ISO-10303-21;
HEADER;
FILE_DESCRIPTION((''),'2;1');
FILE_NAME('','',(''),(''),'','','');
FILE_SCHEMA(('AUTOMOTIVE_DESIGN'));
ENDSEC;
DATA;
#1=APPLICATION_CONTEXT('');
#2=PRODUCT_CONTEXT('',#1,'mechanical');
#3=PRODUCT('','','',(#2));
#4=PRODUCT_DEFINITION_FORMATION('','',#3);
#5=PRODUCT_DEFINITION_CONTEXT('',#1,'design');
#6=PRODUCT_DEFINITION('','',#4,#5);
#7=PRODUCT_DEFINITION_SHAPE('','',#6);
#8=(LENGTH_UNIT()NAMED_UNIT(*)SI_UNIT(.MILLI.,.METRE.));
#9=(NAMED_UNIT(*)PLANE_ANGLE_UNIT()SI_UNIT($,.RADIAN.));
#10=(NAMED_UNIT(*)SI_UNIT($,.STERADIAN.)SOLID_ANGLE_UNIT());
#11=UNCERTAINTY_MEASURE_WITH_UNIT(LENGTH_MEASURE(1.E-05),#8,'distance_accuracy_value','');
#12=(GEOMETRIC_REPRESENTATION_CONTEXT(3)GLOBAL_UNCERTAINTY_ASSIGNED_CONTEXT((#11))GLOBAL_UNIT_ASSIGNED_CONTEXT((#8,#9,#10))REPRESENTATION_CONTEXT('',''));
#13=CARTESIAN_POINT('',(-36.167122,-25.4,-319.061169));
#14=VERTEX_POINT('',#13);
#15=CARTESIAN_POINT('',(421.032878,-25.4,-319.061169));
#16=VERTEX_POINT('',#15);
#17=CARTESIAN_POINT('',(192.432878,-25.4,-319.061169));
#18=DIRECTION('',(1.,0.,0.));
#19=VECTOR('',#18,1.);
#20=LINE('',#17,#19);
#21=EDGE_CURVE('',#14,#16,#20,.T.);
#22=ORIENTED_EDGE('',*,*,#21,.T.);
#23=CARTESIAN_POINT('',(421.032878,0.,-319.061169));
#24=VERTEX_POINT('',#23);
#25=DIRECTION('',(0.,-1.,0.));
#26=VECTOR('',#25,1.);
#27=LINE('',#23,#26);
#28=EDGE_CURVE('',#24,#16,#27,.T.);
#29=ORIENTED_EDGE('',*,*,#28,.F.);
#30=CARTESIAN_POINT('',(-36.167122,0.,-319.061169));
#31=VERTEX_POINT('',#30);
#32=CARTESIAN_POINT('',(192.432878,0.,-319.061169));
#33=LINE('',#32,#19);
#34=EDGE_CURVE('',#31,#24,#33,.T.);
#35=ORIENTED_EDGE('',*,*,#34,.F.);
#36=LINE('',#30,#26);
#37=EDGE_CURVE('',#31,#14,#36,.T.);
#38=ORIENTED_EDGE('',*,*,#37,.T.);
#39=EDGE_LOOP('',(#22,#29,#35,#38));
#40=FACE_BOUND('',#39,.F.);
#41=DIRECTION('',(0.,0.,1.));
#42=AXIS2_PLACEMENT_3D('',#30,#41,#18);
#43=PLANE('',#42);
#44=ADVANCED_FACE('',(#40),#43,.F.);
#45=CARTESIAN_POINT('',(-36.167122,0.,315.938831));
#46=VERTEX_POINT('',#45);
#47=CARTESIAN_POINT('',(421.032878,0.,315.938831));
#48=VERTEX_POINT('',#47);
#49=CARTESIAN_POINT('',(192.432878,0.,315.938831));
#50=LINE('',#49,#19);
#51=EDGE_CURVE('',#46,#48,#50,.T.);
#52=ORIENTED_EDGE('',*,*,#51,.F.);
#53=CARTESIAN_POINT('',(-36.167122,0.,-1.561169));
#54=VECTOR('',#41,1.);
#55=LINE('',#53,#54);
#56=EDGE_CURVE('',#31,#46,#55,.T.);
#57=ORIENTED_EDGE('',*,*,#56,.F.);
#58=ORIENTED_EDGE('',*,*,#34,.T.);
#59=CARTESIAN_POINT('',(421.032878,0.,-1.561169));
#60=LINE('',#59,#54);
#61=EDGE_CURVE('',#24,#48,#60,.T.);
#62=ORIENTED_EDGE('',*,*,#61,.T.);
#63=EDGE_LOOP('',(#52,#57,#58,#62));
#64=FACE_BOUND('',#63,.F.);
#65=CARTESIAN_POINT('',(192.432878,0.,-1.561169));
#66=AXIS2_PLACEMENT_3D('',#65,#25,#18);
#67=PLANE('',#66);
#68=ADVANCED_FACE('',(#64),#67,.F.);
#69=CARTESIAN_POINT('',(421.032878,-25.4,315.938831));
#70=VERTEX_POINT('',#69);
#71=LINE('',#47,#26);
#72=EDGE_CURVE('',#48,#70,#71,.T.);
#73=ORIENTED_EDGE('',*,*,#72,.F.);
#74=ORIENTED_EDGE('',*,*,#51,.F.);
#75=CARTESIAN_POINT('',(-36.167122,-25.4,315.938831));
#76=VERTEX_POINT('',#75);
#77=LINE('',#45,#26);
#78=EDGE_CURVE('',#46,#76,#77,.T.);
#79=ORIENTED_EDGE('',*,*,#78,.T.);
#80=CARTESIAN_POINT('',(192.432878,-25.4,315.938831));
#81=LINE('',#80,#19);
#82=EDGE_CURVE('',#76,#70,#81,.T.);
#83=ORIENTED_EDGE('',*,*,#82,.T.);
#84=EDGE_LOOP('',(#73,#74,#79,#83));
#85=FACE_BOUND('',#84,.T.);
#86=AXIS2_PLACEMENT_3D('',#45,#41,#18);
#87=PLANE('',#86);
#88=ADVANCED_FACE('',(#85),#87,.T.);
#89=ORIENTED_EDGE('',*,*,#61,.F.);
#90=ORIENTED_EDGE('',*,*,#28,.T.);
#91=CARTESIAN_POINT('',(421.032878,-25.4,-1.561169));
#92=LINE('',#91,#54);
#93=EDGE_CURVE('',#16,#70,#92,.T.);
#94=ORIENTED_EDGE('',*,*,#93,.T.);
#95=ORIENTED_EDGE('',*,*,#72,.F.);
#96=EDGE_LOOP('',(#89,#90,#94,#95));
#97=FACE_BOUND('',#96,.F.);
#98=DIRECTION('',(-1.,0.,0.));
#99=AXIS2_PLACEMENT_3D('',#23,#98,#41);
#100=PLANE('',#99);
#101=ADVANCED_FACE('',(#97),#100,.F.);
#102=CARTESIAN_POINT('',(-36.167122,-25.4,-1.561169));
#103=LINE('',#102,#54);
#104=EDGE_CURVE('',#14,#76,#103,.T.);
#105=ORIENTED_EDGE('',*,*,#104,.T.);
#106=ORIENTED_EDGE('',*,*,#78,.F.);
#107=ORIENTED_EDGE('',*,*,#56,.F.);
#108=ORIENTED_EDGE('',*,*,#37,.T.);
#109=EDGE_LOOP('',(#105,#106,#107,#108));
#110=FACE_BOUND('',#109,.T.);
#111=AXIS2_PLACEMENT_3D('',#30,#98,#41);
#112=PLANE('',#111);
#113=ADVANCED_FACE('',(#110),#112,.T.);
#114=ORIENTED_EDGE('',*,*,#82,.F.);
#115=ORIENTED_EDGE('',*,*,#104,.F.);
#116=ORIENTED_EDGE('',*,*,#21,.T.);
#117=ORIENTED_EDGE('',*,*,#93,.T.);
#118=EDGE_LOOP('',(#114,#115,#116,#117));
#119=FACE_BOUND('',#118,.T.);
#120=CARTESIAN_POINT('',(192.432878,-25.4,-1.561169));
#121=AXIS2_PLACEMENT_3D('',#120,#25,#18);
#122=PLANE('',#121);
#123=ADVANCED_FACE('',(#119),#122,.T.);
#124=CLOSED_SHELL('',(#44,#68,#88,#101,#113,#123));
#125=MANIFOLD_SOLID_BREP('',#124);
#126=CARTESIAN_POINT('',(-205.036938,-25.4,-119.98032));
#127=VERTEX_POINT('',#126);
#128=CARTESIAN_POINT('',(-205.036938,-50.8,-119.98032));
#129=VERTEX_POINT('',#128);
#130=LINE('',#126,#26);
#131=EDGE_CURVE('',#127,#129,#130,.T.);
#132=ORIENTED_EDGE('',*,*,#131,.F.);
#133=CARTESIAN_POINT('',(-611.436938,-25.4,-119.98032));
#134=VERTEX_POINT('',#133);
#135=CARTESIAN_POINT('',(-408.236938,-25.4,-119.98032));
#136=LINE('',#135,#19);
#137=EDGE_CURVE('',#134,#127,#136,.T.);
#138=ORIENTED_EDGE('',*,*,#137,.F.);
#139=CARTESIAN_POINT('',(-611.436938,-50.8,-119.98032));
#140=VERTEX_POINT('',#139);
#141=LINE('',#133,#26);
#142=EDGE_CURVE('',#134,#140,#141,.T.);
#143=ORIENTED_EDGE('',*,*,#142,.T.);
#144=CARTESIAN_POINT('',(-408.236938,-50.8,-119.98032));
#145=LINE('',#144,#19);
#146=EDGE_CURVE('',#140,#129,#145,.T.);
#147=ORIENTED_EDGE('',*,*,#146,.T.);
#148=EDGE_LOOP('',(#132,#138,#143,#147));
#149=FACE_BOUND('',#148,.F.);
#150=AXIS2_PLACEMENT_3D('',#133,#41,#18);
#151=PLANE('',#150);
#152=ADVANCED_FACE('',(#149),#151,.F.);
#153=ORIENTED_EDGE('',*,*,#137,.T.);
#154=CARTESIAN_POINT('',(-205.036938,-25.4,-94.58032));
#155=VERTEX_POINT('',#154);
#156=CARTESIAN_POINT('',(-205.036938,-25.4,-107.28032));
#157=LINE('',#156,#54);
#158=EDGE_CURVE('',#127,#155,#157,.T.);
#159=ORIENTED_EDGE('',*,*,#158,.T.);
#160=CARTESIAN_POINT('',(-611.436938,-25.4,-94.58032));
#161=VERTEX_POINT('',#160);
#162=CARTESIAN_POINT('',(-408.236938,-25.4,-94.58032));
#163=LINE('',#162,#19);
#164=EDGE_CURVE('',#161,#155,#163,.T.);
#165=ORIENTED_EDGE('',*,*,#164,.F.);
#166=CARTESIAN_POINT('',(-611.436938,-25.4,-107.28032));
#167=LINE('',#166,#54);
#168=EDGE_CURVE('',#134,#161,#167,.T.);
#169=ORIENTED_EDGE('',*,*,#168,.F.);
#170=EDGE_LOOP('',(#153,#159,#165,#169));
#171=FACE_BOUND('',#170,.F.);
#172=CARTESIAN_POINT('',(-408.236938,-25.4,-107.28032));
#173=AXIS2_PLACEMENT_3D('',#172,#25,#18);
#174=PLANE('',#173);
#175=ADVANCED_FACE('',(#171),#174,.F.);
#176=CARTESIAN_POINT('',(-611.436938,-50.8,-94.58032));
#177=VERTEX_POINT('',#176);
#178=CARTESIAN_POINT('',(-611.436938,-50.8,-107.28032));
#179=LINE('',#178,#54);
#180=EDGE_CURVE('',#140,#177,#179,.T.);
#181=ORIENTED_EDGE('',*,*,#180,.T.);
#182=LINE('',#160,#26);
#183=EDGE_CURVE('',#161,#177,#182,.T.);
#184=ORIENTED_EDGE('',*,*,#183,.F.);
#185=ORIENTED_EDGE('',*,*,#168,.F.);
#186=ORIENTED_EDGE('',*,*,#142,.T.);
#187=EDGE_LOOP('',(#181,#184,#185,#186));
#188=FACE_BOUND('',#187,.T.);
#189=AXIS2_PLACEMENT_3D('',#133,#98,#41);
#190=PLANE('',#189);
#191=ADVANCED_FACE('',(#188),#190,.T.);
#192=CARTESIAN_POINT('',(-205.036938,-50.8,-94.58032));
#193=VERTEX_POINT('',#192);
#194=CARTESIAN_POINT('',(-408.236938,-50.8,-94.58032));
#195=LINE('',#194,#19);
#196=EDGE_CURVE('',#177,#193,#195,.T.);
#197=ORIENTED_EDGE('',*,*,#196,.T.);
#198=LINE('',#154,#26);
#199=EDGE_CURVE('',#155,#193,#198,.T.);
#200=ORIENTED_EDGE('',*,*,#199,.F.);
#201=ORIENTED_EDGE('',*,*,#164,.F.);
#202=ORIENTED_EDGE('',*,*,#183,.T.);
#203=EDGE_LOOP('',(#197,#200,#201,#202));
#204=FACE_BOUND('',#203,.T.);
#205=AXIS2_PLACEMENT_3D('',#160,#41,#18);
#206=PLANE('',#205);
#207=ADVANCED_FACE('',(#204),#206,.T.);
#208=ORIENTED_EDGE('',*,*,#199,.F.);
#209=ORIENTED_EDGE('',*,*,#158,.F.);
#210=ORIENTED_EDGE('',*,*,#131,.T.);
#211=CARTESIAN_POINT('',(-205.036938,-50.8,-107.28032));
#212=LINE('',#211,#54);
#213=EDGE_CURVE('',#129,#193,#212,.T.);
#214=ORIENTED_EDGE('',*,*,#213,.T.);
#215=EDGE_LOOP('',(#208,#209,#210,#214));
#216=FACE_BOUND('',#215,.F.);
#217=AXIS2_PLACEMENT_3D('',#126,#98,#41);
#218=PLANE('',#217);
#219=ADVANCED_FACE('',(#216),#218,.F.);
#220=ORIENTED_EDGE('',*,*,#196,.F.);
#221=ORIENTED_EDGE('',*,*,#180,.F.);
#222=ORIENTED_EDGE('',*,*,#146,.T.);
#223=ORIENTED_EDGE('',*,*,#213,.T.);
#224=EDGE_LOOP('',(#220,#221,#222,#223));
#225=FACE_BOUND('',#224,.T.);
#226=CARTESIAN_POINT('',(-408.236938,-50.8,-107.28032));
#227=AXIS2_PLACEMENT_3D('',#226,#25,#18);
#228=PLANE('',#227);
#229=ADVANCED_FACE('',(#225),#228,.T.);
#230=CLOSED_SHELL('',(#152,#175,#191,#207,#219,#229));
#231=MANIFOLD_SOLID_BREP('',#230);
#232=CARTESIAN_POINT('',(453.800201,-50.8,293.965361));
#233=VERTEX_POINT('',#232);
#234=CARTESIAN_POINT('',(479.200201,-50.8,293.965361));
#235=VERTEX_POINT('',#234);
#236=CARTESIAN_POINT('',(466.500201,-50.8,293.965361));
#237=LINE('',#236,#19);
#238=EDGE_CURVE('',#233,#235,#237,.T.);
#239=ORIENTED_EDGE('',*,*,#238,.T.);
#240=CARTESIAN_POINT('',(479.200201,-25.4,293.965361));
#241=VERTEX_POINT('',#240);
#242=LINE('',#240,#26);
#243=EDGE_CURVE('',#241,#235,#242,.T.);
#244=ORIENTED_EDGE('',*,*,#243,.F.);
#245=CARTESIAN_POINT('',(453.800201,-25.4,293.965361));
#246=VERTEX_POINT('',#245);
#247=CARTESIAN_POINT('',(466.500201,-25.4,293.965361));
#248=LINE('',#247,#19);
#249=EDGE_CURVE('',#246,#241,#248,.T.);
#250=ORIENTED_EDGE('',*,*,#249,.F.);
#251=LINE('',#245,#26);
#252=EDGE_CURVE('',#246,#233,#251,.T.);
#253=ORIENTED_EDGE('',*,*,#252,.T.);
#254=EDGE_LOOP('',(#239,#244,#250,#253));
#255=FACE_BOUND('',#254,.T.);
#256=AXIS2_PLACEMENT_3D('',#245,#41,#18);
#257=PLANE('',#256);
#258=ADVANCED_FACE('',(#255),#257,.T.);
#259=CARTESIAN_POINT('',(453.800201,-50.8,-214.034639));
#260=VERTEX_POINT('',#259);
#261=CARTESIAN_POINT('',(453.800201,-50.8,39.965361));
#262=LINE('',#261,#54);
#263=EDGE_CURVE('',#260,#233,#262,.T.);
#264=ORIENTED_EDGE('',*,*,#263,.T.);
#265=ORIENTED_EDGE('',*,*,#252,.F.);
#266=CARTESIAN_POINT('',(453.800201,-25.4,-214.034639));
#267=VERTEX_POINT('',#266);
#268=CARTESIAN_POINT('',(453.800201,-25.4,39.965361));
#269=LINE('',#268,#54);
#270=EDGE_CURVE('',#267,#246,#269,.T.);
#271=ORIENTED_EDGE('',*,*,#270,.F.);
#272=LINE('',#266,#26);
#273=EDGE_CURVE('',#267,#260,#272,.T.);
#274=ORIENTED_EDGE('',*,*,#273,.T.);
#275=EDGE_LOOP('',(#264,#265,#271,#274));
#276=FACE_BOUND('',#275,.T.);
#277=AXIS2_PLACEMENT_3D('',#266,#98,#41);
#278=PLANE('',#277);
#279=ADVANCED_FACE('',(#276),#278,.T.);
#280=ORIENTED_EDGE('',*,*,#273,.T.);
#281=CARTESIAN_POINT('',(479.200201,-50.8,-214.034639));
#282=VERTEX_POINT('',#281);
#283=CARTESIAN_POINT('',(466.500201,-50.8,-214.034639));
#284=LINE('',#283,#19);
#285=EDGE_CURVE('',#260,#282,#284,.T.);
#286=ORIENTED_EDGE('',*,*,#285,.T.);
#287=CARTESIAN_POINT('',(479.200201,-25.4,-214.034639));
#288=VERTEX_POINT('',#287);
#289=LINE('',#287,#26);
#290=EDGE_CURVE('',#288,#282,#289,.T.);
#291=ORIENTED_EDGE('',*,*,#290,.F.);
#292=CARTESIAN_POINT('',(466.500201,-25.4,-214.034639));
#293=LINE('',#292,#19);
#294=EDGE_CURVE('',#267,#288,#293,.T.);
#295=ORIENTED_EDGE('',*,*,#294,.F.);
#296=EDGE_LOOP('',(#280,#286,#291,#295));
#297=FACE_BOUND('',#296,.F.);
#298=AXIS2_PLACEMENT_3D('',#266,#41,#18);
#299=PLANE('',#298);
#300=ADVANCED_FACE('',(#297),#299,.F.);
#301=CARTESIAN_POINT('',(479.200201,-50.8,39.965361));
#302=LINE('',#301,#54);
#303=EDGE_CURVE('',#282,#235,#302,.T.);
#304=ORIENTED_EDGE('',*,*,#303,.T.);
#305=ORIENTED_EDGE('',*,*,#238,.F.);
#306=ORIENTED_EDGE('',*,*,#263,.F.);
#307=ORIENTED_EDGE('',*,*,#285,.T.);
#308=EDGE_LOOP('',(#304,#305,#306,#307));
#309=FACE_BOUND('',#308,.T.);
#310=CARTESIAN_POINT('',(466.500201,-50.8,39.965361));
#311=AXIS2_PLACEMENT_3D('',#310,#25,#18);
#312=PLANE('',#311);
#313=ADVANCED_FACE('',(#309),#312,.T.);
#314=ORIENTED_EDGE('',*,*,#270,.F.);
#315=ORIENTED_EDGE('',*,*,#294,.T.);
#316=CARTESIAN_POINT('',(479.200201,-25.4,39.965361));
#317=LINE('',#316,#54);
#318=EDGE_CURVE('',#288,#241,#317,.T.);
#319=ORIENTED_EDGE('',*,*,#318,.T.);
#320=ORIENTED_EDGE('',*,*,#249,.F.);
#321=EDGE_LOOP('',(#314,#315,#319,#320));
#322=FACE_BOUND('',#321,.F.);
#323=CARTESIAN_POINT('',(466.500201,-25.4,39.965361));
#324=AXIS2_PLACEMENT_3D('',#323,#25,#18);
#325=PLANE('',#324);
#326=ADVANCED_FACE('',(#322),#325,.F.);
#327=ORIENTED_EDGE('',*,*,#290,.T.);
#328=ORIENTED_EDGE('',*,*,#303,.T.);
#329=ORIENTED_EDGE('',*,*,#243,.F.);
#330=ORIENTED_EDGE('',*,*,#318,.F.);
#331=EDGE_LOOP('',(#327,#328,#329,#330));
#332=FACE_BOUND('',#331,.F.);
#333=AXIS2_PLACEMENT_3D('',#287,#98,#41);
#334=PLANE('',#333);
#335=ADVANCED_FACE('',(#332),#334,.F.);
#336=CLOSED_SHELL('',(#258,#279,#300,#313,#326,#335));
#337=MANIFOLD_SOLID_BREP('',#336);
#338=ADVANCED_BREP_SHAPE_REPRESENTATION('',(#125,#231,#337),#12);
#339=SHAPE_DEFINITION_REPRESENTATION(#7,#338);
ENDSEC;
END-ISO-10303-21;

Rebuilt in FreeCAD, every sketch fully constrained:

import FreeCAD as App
import Part
import Sketcher

V = App.Vector
Q = App.Units.Quantity

doc = App.newDocument("Part")
body = doc.addObject("PartDesign::Body", "Body")

sketch1 = body.newObject("Sketcher::SketchObject", "Sketch")
sketch1.AttachmentSupport = (doc.getObject("XZ_Plane"), [""])
sketch1.MapMode = "FlatFace"
sketch1.addGeometry([
    Part.LineSegment(V(-36, 316, 0), V(-36, -319, 0)),
    Part.LineSegment(V(-36, -319, 0), V(421, -319, 0)),
    Part.LineSegment(V(421, -319, 0), V(421, 316, 0)),
    Part.LineSegment(V(421, 316, 0), V(-36, 316, 0)),
], False)
sketch1.addConstraint([
    Sketcher.Constraint("Coincident", 0, 2, 1, 1),
    Sketcher.Constraint("Coincident", 1, 2, 2, 1),
    Sketcher.Constraint("Coincident", 2, 2, 3, 1),
    Sketcher.Constraint("Coincident", 3, 2, 0, 1),
    Sketcher.Constraint("Vertical", 0),
    Sketcher.Constraint("Horizontal", 1),
    Sketcher.Constraint("Vertical", 2),
    Sketcher.Constraint("Horizontal", 3),
    Sketcher.Constraint("DistanceX", 1, 1, 1, 2, Q("18 in")),
    Sketcher.Constraint("DistanceY", 0, 2, 0, 1, Q("25 in")),
    Sketcher.Constraint("DistanceY", 0, 2, -1, 1, Q("319.061169 mm")),
    Sketcher.Constraint("DistanceX", -1, 1, 1, 2, Q("421.032878 mm")),
])
pad1 = body.newObject("PartDesign::Pad", "Pad")
pad1.Profile = sketch1
pad1.Length = Q("1 in")
body2 = doc.addObject("PartDesign::Body", "Body001")

sketch2 = body2.newObject("Sketcher::SketchObject", "Sketch001")
sketch2.AttachmentSupport = (doc.getObject("XZ_Plane001"), [""])
sketch2.MapMode = "FlatFace"
sketch2.AttachmentOffset = App.Placement(V(0, 0, 1 * 25.4), App.Rotation())
sketch2.addGeometry([
    Part.LineSegment(V(454, 294, 0), V(454, -214, 0)),
    Part.LineSegment(V(454, -214, 0), V(479, -214, 0)),
    Part.LineSegment(V(479, -214, 0), V(479, 294, 0)),
    Part.LineSegment(V(479, 294, 0), V(454, 294, 0)),
], False)
sketch2.addConstraint([
    Sketcher.Constraint("Coincident", 0, 2, 1, 1),
    Sketcher.Constraint("Coincident", 1, 2, 2, 1),
    Sketcher.Constraint("Coincident", 2, 2, 3, 1),
    Sketcher.Constraint("Coincident", 3, 2, 0, 1),
    Sketcher.Constraint("Vertical", 0),
    Sketcher.Constraint("Horizontal", 1),
    Sketcher.Constraint("Vertical", 2),
    Sketcher.Constraint("Horizontal", 3),
    Sketcher.Constraint("DistanceX", 1, 1, 1, 2, Q("1 in")),
    Sketcher.Constraint("DistanceY", 0, 2, 0, 1, Q("20 in")),
    Sketcher.Constraint("DistanceX", -1, 1, 0, 2, Q("453.800201 mm")),
    Sketcher.Constraint("DistanceY", 0, 2, -1, 1, Q("214.034639 mm")),
])
pad2 = body2.newObject("PartDesign::Pad", "Pad001")
pad2.Profile = sketch2
pad2.Length = Q("1 in")
body3 = doc.addObject("PartDesign::Body", "Body002")

sketch3 = body3.newObject("Sketcher::SketchObject", "Sketch002")
sketch3.AttachmentSupport = (doc.getObject("XZ_Plane002"), [""])
sketch3.MapMode = "FlatFace"
sketch3.AttachmentOffset = App.Placement(V(0, 0, 1 * 25.4), App.Rotation())
sketch3.addGeometry([
    Part.LineSegment(V(-611, -95, 0), V(-611, -120, 0)),
    Part.LineSegment(V(-611, -120, 0), V(-205, -120, 0)),
    Part.LineSegment(V(-205, -120, 0), V(-205, -95, 0)),
    Part.LineSegment(V(-205, -95, 0), V(-611, -95, 0)),
], False)
sketch3.addConstraint([
    Sketcher.Constraint("Coincident", 0, 2, 1, 1),
    Sketcher.Constraint("Coincident", 1, 2, 2, 1),
    Sketcher.Constraint("Coincident", 2, 2, 3, 1),
    Sketcher.Constraint("Coincident", 3, 2, 0, 1),
    Sketcher.Constraint("Vertical", 0),
    Sketcher.Constraint("Horizontal", 1),
    Sketcher.Constraint("Vertical", 2),
    Sketcher.Constraint("Horizontal", 3),
    Sketcher.Constraint("DistanceX", 1, 1, 1, 2, Q("16 in")),
    Sketcher.Constraint("DistanceY", 0, 2, 0, 1, Q("1 in")),
    Sketcher.Constraint("DistanceX", 0, 2, -1, 1, Q("611.436938 mm")),
    Sketcher.Constraint("DistanceY", 0, 2, -1, 1, Q("119.98032 mm")),
])
pad3 = body3.newObject("PartDesign::Pad", "Pad002")
pad3.Profile = sketch3
pad3.Length = Q("1 in")

doc.recompute()
